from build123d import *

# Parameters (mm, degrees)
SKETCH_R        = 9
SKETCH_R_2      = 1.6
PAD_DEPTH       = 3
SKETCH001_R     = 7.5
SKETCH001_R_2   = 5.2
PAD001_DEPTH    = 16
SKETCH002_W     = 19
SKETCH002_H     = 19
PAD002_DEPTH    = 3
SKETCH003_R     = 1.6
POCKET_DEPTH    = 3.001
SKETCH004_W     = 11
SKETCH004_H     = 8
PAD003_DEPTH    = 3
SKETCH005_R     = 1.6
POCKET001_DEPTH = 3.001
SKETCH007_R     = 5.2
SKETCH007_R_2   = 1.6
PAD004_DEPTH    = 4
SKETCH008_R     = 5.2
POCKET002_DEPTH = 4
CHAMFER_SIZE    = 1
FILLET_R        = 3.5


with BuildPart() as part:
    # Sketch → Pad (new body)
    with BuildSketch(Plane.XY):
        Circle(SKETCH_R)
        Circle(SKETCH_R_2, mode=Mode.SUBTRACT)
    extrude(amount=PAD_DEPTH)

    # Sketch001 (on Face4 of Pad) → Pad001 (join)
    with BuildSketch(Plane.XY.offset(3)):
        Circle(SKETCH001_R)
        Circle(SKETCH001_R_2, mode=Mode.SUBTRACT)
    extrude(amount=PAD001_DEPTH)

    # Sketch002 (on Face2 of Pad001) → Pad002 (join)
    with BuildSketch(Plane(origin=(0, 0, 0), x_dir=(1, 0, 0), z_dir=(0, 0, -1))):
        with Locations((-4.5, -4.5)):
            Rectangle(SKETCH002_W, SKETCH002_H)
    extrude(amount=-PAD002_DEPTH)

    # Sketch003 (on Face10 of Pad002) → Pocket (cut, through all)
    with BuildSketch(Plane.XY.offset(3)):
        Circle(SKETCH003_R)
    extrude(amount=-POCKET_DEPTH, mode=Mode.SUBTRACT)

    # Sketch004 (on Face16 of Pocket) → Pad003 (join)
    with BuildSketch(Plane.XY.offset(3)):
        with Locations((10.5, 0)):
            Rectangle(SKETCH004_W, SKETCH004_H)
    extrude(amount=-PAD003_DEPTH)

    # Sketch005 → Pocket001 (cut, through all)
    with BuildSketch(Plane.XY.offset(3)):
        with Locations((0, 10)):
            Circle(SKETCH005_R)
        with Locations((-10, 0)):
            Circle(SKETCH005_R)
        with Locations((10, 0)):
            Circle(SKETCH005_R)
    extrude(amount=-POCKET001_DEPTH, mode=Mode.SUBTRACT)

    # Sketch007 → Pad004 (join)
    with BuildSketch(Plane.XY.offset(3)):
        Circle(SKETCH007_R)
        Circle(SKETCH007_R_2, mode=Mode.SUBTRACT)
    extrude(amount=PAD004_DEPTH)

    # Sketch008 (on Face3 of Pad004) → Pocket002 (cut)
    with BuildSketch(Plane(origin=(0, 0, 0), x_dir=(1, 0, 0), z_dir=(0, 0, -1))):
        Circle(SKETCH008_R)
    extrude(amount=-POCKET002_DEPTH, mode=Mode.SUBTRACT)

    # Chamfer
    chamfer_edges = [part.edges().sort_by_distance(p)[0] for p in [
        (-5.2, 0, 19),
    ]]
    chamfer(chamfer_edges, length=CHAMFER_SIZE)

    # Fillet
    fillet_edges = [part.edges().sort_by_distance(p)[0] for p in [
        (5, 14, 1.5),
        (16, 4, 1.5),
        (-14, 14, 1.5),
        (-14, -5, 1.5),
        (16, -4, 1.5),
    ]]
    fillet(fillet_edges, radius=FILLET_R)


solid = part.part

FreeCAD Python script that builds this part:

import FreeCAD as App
import Part
import Sketcher
Q = App.Units.Quantity


def edges_at(feature, points):
    """Names of the edges that pass closest to the given points."""
    edges = feature.Shape.Edges
    near = lambda p: min(range(len(edges)), key=lambda i: edges[i].distToShape(Part.Vertex(*p))[0])
    return sorted({f"Edge{near(p) + 1}" for p in points})


def add_polygon(sketch, points):
    """Adds a closed chain of lines whose ends are joined by coincident constraints."""
    first, n = sketch.GeometryCount, len(points)
    for a, b in zip(points, points[1:] + points[:1]):
        sketch.addGeometry(Part.LineSegment(App.Vector(*a, 0), App.Vector(*b, 0)), False)
    for i in range(n):
        sketch.addConstraint(Sketcher.Constraint("Coincident", first + i, 2, first + (i + 1) % n, 1))

doc = App.newDocument("Part")
body = doc.addObject("PartDesign::Body", "Body")

# Sketch on XY plane
sketch1 = doc.addObject("Sketcher::SketchObject", "Sketch")
body.addObject(sketch1)
sketch1.AttachmentSupport = (doc.XY_Plane, [""])
sketch1.MapMode = "FlatFace"
sketch1.addGeometry([
    Part.Circle(App.Vector(0, 0, 0), App.Vector(0, 0, 1), 9),
    Part.Circle(App.Vector(0, 0, 0), App.Vector(0, 0, 1), 1.6),
], False)
sketch1.addConstraint([
    Sketcher.Constraint("Coincident", 0, 3, -1, 1),
    Sketcher.Constraint("Coincident", 1, 3, -1, 1),
    Sketcher.Constraint("Diameter", 0, Q("18 mm")),
    Sketcher.Constraint("Diameter", 1, Q("3.2 mm")),
])
pad1 = doc.addObject("PartDesign::Pad", "Pad")
body.addObject(pad1)
pad1.Profile = sketch1
pad1.Length = 3

# Sketch on XY plane
sketch2 = doc.addObject("Sketcher::SketchObject", "Sketch001")
body.addObject(sketch2)
sketch2.AttachmentSupport = (doc.XY_Plane, [""])
sketch2.MapMode = "FlatFace"
sketch2.AttachmentOffset = App.Placement(App.Vector(0, 0, 3), App.Rotation())
sketch2.addGeometry([
    Part.Circle(App.Vector(0, 0, 0), App.Vector(0, 0, 1), 7.5),
    Part.Circle(App.Vector(0, 0, 0), App.Vector(0, 0, 1), 5.2),
], False)
sketch2.addConstraint([
    Sketcher.Constraint("Coincident", 0, 3, -1, 1),
    Sketcher.Constraint("Coincident", 1, 3, -1, 1),
    Sketcher.Constraint("Diameter", 0, Q("15 mm")),
    Sketcher.Constraint("Diameter", 1, Q("10.4 mm")),
])
pad2 = doc.addObject("PartDesign::Pad", "Pad001")
body.addObject(pad2)
pad2.Profile = sketch2
pad2.Length = 16

# Sketch on XY plane
sketch3 = doc.addObject("Sketcher::SketchObject", "Sketch002")
body.addObject(sketch3)
sketch3.AttachmentSupport = (doc.XY_Plane, [""])
sketch3.MapMode = "FlatFace"
add_polygon(sketch3, [(-14, -5), (-14, 14), (5, 14), (5, -5)])  # lines 0-3
sketch3.addConstraint([
    Sketcher.Constraint("Vertical", 0),
    Sketcher.Constraint("Horizontal", 1),
    Sketcher.Constraint("Vertical", 2),
    Sketcher.Constraint("Horizontal", 3),
    Sketcher.Constraint("Equal", 3, 0),
    Sketcher.Constraint("DistanceX", 1, 1, 1, 2, Q("19 mm")),
    Sketcher.Constraint("DistanceX", 0, 2, -1, 1, Q("14 mm")),
    Sketcher.Constraint("DistanceY", -1, 1, 0, 2, Q("14 mm")),
])
pad3 = doc.addObject("PartDesign::Pad", "Pad002")
body.addObject(pad3)
pad3.Profile = sketch3
pad3.Length = 3

# Sketch on XY plane
sketch4 = doc.addObject("Sketcher::SketchObject", "Sketch003")
body.addObject(sketch4)
sketch4.AttachmentSupport = (doc.XY_Plane, [""])
sketch4.MapMode = "FlatFace"
sketch4.AttachmentOffset = App.Placement(App.Vector(0, 0, 3), App.Rotation())
sketch4.addGeometry(Part.Circle(App.Vector(0, 0, 0), App.Vector(0, 0, 1), 1.6), False)
sketch4.addConstraint([
    Sketcher.Constraint("Coincident", 0, 3, -1, 1),
    Sketcher.Constraint("Diameter", 0, Q("3.2 mm")),
])
pocket1 = doc.addObject("PartDesign::Pocket", "Pocket")
body.addObject(pocket1)
pocket1.Profile = sketch4
pocket1.Type = "ThroughAll"

# Sketch on XY plane
sketch5 = doc.addObject("Sketcher::SketchObject", "Sketch004")
body.addObject(sketch5)
sketch5.AttachmentSupport = (doc.XY_Plane, [""])
sketch5.MapMode = "FlatFace"
sketch5.AttachmentOffset = App.Placement(App.Vector(0, 0, 3), App.Rotation())
add_polygon(sketch5, [(5, 4), (5, -4), (16, -4), (16, 4)])  # lines 0-3
sketch5.addConstraint([
    Sketcher.Constraint("Vertical", 0),
    Sketcher.Constraint("Horizontal", 1),
    Sketcher.Constraint("Vertical", 2),
    Sketcher.Constraint("Horizontal", 3),
    Sketcher.Constraint("DistanceX", 1, 1, 1, 2, Q("11 mm")),
    Sketcher.Constraint("DistanceY", 0, 2, 0, 1, Q("8 mm")),
    Sketcher.Constraint("DistanceX", -1, 1, 0, 2, Q("5 mm")),
    Sketcher.Constraint("DistanceY", 0, 2, -1, 1, Q("4 mm")),
])
pad4 = doc.addObject("PartDesign::Pad", "Pad003")
body.addObject(pad4)
pad4.Profile = sketch5
pad4.Length = 3
pad4.Reversed = True

# Sketch on XY plane
sketch6 = doc.addObject("Sketcher::SketchObject", "Sketch005")
body.addObject(sketch6)
sketch6.AttachmentSupport = (doc.XY_Plane, [""])
sketch6.MapMode = "FlatFace"
sketch6.AttachmentOffset = App.Placement(App.Vector(0, 0, 3), App.Rotation())
sketch6.addGeometry([
    Part.Circle(App.Vector(0, 10, 0), App.Vector(0, 0, 1), 1.6),
    Part.Circle(App.Vector(-10, 0, 0), App.Vector(0, 0, 1), 1.6),
    Part.Circle(App.Vector(10, 0, 0), App.Vector(0, 0, 1), 1.6),
], False)
sketch6.addConstraint([
    Sketcher.Constraint("Equal", 0, 1),
    Sketcher.Constraint("Equal", 1, 2),
    Sketcher.Constraint("Symmetric", 1, 3, 2, 3, -1, 1),
    Sketcher.Constraint("PointOnObject", 0, 3, -2),
    Sketcher.Constraint("PointOnObject", 1, 3, -1),
    Sketcher.Constraint("Diameter", 0, Q("3.2 mm")),
    Sketcher.Constraint("DistanceY", -1, 1, 0, 3, Q("10 mm")),
    Sketcher.Constraint("DistanceX", 1, 3, -1, 1, Q("10 mm")),
])
pocket2 = doc.addObject("PartDesign::Pocket", "Pocket001")
body.addObject(pocket2)
pocket2.Profile = sketch6
pocket2.Type = "ThroughAll"

# Sketch on XY plane
sketch7 = doc.addObject("Sketcher::SketchObject", "Sketch006")
body.addObject(sketch7)
sketch7.AttachmentSupport = (doc.XY_Plane, [""])
sketch7.MapMode = "FlatFace"
sketch7.AttachmentOffset = App.Placement(App.Vector(0, 0, 3), App.Rotation())
sketch7.addGeometry([
    Part.Circle(App.Vector(0, 0, 0), App.Vector(0, 0, 1), 5.2),
    Part.Circle(App.Vector(0, 0, 0), App.Vector(0, 0, 1), 1.6),
], False)
sketch7.addConstraint([
    Sketcher.Constraint("Coincident", 0, 3, -1, 1),
    Sketcher.Constraint("Coincident", 1, 3, -1, 1),
    Sketcher.Constraint("Diameter", 0, Q("10.4 mm")),
    Sketcher.Constraint("Diameter", 1, Q("3.2 mm")),
])
pad5 = doc.addObject("PartDesign::Pad", "Pad004")
body.addObject(pad5)
pad5.Profile = sketch7
pad5.Length = 4

# Sketch on XY plane
sketch8 = doc.addObject("Sketcher::SketchObject", "Sketch007")
body.addObject(sketch8)
sketch8.AttachmentSupport = (doc.XY_Plane, [""])
sketch8.MapMode = "FlatFace"
sketch8.addGeometry(Part.Circle(App.Vector(0, 0, 0), App.Vector(0, 0, 1), 5.2), False)
sketch8.addConstraint([
    Sketcher.Constraint("Coincident", 0, 3, -1, 1),
    Sketcher.Constraint("Diameter", 0, Q("10.4 mm")),
])
pocket3 = doc.addObject("PartDesign::Pocket", "Pocket002")
body.addObject(pocket3)
pocket3.Profile = sketch8
pocket3.Length = 4
pocket3.Reversed = True
doc.recompute()

chamfer = doc.addObject("PartDesign::Chamfer", "Chamfer")
body.addObject(chamfer)
chamfer.Base = (pocket3, edges_at(pocket3, [(-5.2, 0, 19)]))
chamfer.Size = 1
doc.recompute()

fillet = doc.addObject("PartDesign::Fillet", "Fillet")
body.addObject(fillet)
fillet.Base = (chamfer, edges_at(chamfer, [
    (5, 14, 1.5),
    (16, 4, 1.5),
    (-14, 14, 1.5),
    (-14, -5, 1.5),
    (16, -4, 1.5),
]))
fillet.Radius = 3.5

doc.recompute()
